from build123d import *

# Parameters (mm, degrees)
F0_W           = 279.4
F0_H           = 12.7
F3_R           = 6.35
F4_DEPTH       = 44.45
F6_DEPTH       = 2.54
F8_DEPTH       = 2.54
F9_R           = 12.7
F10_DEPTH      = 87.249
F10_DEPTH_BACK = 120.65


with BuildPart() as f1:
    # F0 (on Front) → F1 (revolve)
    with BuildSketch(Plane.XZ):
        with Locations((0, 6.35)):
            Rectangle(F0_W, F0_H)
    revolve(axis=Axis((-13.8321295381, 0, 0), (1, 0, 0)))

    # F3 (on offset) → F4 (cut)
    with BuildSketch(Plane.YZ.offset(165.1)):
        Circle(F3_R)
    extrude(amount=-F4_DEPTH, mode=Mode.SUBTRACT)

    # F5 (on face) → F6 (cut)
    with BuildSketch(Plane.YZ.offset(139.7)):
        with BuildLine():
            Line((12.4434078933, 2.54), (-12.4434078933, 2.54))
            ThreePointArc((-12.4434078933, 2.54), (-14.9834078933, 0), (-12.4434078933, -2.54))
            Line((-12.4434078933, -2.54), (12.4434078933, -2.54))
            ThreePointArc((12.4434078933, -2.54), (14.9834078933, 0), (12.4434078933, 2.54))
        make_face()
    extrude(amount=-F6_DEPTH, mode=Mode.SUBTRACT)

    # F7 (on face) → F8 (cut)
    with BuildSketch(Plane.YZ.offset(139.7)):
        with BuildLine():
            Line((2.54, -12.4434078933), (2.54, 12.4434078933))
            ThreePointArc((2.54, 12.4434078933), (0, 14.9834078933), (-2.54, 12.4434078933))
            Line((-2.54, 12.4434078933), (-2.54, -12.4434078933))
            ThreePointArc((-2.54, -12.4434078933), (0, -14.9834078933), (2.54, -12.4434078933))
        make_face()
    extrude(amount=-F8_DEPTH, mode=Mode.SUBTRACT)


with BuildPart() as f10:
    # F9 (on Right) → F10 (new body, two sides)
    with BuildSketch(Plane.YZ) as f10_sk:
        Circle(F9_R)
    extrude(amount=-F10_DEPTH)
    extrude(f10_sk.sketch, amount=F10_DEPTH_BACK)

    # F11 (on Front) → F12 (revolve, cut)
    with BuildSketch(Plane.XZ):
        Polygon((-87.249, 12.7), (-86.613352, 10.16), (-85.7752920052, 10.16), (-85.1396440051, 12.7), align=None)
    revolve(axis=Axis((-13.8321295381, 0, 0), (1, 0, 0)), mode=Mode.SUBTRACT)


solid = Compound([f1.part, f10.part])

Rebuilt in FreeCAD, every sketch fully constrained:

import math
import FreeCAD as App
import Part
import Sketcher
from FreeCAD import Vector
Q = App.Units.Quantity

doc = App.newDocument("Part")
body = doc.addObject("PartDesign::Body", "Body")

# Sketch on XZ plane
sketch1 = body.newObject("Sketcher::SketchObject", "Sketch")
sketch1.AttachmentSupport = (doc.getObject("XZ_Plane"), [""])
sketch1.MapMode = "FlatFace"
sketch1.addGeometry([
    Part.LineSegment(Vector(-139.7, 12.7, 0), Vector(-139.7, 0, 0)),
    Part.LineSegment(Vector(-139.7, 0, 0), Vector(139.7, 0, 0)),
    Part.LineSegment(Vector(139.7, 0, 0), Vector(139.7, 12.7, 0)),
    Part.LineSegment(Vector(139.7, 12.7, 0), Vector(-139.7, 12.7, 0)),
], False)
sketch1.addConstraint([
    Sketcher.Constraint("Coincident", 0, 2, 1, 1),
    Sketcher.Constraint("Coincident", 1, 2, 2, 1),
    Sketcher.Constraint("Coincident", 2, 2, 3, 1),
    Sketcher.Constraint("Coincident", 3, 2, 0, 1),
    Sketcher.Constraint("Vertical", 0),
    Sketcher.Constraint("Horizontal", 1),
    Sketcher.Constraint("Vertical", 2),
    Sketcher.Constraint("Horizontal", 3),
    Sketcher.Constraint("Symmetric", 0, 2, 1, 2, -1, 1),
    Sketcher.Constraint("DistanceX", 1, 1, 1, 2, Q("11 in")),
    Sketcher.Constraint("DistanceY", 0, 2, 0, 1, Q("0.5 in")),
])
revolution = body.newObject("PartDesign::Revolution", "Revolution")
revolution.Profile = sketch1
revolution.ReferenceAxis = (sketch1, ["H_Axis"])
revolution.Angle = 360

# Sketch on YZ plane
sketch2 = body.newObject("Sketcher::SketchObject", "Sketch001")
sketch2.AttachmentSupport = (doc.getObject("YZ_Plane"), [""])
sketch2.MapMode = "FlatFace"
sketch2.AttachmentOffset = App.Placement(Vector(0, 0, 6.5 * 25.4), App.Rotation())
sketch2.addGeometry(Part.Circle(Vector(0, 0, 0), Vector(0, 0, 1), 6.35), False)
sketch2.addConstraint([
    Sketcher.Constraint("Coincident", 0, 3, -1, 1),
    Sketcher.Constraint("Diameter", 0, Q("0.5 in")),
])
pocket1 = body.newObject("PartDesign::Pocket", "Pocket")
pocket1.Profile = sketch2
pocket1.Length = Q("1.75 in")

# Sketch on YZ plane
sketch3 = body.newObject("Sketcher::SketchObject", "Sketch002")
sketch3.AttachmentSupport = (doc.getObject("YZ_Plane"), [""])
sketch3.MapMode = "FlatFace"
sketch3.AttachmentOffset = App.Placement(Vector(0, 0, 5.5 * 25.4), App.Rotation())
sketch3.addGeometry([
    Part.LineSegment(Vector(12.443408, 2.54, 0), Vector(-12.443408, 2.54, 0)),
    Part.ArcOfCircle(Part.Circle(Vector(-12.443408, 0, 0), Vector(0, 0, 1), 2.54), math.radians(90), math.radians(270)),
    Part.LineSegment(Vector(-12.443408, -2.54, 0), Vector(12.443408, -2.54, 0)),
    Part.ArcOfCircle(Part.Circle(Vector(12.443408, 0, 0), Vector(0, 0, 1), 2.54), math.radians(-90), math.radians(90)),
], False)
sketch3.addConstraint([
    Sketcher.Constraint("Tangent", 0, 2, 1, 1),
    Sketcher.Constraint("Tangent", 1, 2, 2, 1),
    Sketcher.Constraint("Tangent", 2, 2, 3, 1),
    Sketcher.Constraint("Tangent", 3, 2, 0, 1),
    Sketcher.Constraint("Horizontal", 0),
    Sketcher.Constraint("Horizontal", 2),
    Sketcher.Constraint("Symmetric", 1, 3, 3, 3, -1, 1),
    Sketcher.Constraint("Radius", 1, Q("0.1 in")),
    Sketcher.Constraint("DistanceX", 0, 2, 0, 1, Q("24.886816 mm")),
])
pocket2 = body.newObject("PartDesign::Pocket", "Pocket001")
pocket2.Profile = sketch3
pocket2.Length = Q("0.1 in")

# Sketch on YZ plane
sketch4 = body.newObject("Sketcher::SketchObject", "Sketch003")
sketch4.AttachmentSupport = (doc.getObject("YZ_Plane"), [""])
sketch4.MapMode = "FlatFace"
sketch4.AttachmentOffset = App.Placement(Vector(0, 0, 5.5 * 25.4), App.Rotation())
sketch4.addGeometry([
    Part.LineSegment(Vector(2.54, -12.443408, 0), Vector(2.54, 12.443408, 0)),
    Part.ArcOfCircle(Part.Circle(Vector(0, 12.443408, 0), Vector(0, 0, 1), 2.54), math.radians(0), math.radians(180)),
    Part.LineSegment(Vector(-2.54, 12.443408, 0), Vector(-2.54, -12.443408, 0)),
    Part.ArcOfCircle(Part.Circle(Vector(0, -12.443408, 0), Vector(0, 0, 1), 2.54), math.radians(180), math.radians(360)),
], False)
sketch4.addConstraint([
    Sketcher.Constraint("Tangent", 0, 2, 1, 1),
    Sketcher.Constraint("Tangent", 1, 2, 2, 1),
    Sketcher.Constraint("Tangent", 2, 2, 3, 1),
    Sketcher.Constraint("Tangent", 3, 2, 0, 1),
    Sketcher.Constraint("Vertical", 0),
    Sketcher.Constraint("Vertical", 2),
    Sketcher.Constraint("Symmetric", 1, 3, 3, 3, -1, 1),
    Sketcher.Constraint("Radius", 1, Q("0.1 in")),
    Sketcher.Constraint("DistanceY", 0, 1, 0, 2, Q("24.886816 mm")),
])
pocket3 = body.newObject("PartDesign::Pocket", "Pocket002")
pocket3.Profile = sketch4
pocket3.Length = Q("0.1 in")
body2 = doc.addObject("PartDesign::Body", "Body001")

# Sketch on YZ plane
sketch5 = body2.newObject("Sketcher::SketchObject", "Sketch004")
sketch5.AttachmentSupport = (doc.getObject("YZ_Plane001"), [""])
sketch5.MapMode = "FlatFace"
sketch5.addGeometry(Part.Circle(Vector(0, 0, 0), Vector(0, 0, 1), 12.7), False)
sketch5.addConstraint([
    Sketcher.Constraint("Coincident", 0, 3, -1, 1),
    Sketcher.Constraint("Diameter", 0, Q("1 in")),
])
pad1 = body2.newObject("PartDesign::Pad", "Pad")
pad1.Profile = sketch5
pad1.Type = "TwoLengths"
pad1.Length = Q("3.435 in")
pad1.Length2 = Q("4.75 in")
pad1.Reversed = True

# Sketch on XZ plane
sketch6 = body2.newObject("Sketcher::SketchObject", "Sketch005")
sketch6.AttachmentSupport = (doc.getObject("XZ_Plane001"), [""])
sketch6.MapMode = "FlatFace"
sketch6.addGeometry([
    Part.LineSegment(Vector(-87.249, 12.7, 0), Vector(-86.613352, 10.16, 0)),
    Part.LineSegment(Vector(-86.613352, 10.16, 0), Vector(-85.775292, 10.16, 0)),
    Part.LineSegment(Vector(-85.775292, 10.16, 0), Vector(-85.139644, 12.7, 0)),
    Part.LineSegment(Vector(-85.139644, 12.7, 0), Vector(-87.249, 12.7, 0)),
], False)
sketch6.addConstraint([
    Sketcher.Constraint("Coincident", 0, 2, 1, 1),
    Sketcher.Constraint("Coincident", 1, 2, 2, 1),
    Sketcher.Constraint("Coincident", 2, 2, 3, 1),
    Sketcher.Constraint("Coincident", 3, 2, 0, 1),
    Sketcher.Constraint("Horizontal", 1),
    Sketcher.Constraint("Horizontal", 3),
    Sketcher.Constraint("Equal", 0, 2),
    Sketcher.Constraint("DistanceY", -1, 1, 0, 2, Q("0.4 in")),
    Sketcher.Constraint("DistanceY", -1, 1, 2, 2, Q("0.5 in")),
    Sketcher.Constraint("Angle", 0, Q("-75.95 deg")),
    Sketcher.Constraint("DistanceX", 3, 2, -1, 1, Q("3.435 in")),
    Sketcher.Constraint("DistanceX", 1, 1, 1, 2, Q("0.83806 mm")),
])
groove = body2.newObject("PartDesign::Groove", "Groove")
groove.Profile = sketch6
groove.ReferenceAxis = (sketch6, ["H_Axis"])
groove.Angle = 360

doc.recompute()
